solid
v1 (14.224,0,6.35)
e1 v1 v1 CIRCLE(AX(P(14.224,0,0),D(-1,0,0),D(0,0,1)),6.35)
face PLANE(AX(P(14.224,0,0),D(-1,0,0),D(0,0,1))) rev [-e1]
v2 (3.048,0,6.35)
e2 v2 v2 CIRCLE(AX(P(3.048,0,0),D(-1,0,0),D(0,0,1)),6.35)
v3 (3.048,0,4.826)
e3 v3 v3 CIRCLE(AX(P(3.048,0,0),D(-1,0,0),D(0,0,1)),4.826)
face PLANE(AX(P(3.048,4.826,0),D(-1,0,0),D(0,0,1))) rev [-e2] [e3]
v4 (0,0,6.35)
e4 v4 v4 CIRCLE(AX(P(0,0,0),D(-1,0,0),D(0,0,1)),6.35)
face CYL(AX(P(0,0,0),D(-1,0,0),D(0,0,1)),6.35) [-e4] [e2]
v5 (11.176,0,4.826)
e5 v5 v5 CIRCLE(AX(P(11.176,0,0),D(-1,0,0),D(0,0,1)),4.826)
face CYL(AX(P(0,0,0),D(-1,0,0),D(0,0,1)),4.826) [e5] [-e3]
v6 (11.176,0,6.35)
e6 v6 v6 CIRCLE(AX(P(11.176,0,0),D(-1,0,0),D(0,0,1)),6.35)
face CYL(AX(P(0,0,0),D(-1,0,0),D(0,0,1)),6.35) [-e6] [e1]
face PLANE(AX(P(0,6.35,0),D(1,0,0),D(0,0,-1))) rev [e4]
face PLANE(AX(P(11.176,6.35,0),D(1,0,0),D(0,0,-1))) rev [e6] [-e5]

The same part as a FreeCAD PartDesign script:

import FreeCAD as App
import Part
import Sketcher
Q = App.Units.Quantity

doc = App.newDocument("Part")
params = doc.addObject("Spreadsheet::Sheet", "Params")
for row, (alias, value) in enumerate([
    ("sketch1_width", "0.12 in"),
    ("sketch1_width2", "0.32 in"),
    ("sketch1_height", "0.25 in"),
    ("sketch1_height2", "0.06 in"),
    ("revolution_angle", "360 deg"),
], start=1):
    params.set(f"A{row}", alias)
    params.set(f"B{row}", "=" + value)
    params.setAlias(f"B{row}", alias)

body = doc.addObject("PartDesign::Body", "Body")

# Sketch on XY plane
sketch1 = body.newObject("Sketcher::SketchObject", "Sketch")
sketch1.AttachmentSupport = (doc.getObject("XY_Plane"), [""])
sketch1.MapMode = "FlatFace"
sketch1.addGeometry([
    Part.LineSegment(App.Vector(14.2, 0, 0), App.Vector(14.2, 6.3, 0)),  # 0
    Part.LineSegment(App.Vector(14.2, 6.3, 0), App.Vector(11.2, 6.3, 0)),  # 1
    Part.LineSegment(App.Vector(11.2, 6.3, 0), App.Vector(11.2, 4.8, 0)),  # 2
    Part.LineSegment(App.Vector(11.2, 4.8, 0), App.Vector(3, 4.8, 0)),  # 3
    Part.LineSegment(App.Vector(3, 4.8, 0), App.Vector(3, 6.3, 0)),  # 4
    Part.LineSegment(App.Vector(3, 6.3, 0), App.Vector(0, 6.3, 0)),  # 5
    Part.LineSegment(App.Vector(0, 6.3, 0), App.Vector(0, 0, 0)),  # 6
    Part.LineSegment(App.Vector(0, 0, 0), App.Vector(14.2, 0, 0)),  # 7
], False)
sketch1.addConstraint([
    Sketcher.Constraint("Coincident", 0, 2, 1, 1),
    Sketcher.Constraint("Coincident", 1, 2, 2, 1),
    Sketcher.Constraint("Coincident", 2, 2, 3, 1),
    Sketcher.Constraint("Coincident", 3, 2, 4, 1),
    Sketcher.Constraint("Coincident", 4, 2, 5, 1),
    Sketcher.Constraint("Coincident", 5, 2, 6, 1),
    Sketcher.Constraint("Coincident", 6, 2, 7, 1),
    Sketcher.Constraint("Coincident", 7, 2, 0, 1),
    Sketcher.Constraint("Vertical", 0),
    Sketcher.Constraint("Horizontal", 1),
    Sketcher.Constraint("Vertical", 2),
    Sketcher.Constraint("Horizontal", 3),
    Sketcher.Constraint("Vertical", 4),
    Sketcher.Constraint("Horizontal", 5),
    Sketcher.Constraint("Vertical", 6),
    Sketcher.Constraint("Horizontal", 7),
    Sketcher.Constraint("Coincident", 6, 2, -1, 1),
    Sketcher.Constraint("Horizontal", 1, 2, 4, 2),
    Sketcher.Constraint("Equal", 1, 5),
    Sketcher.Constraint("DistanceX", 1, 2, 1, 1, Q("0.12 in")),
    Sketcher.Constraint("DistanceX", 3, 2, 3, 1, Q("0.32 in")),
    Sketcher.Constraint("DistanceY", 0, 1, 0, 2, Q("0.25 in")),
    Sketcher.Constraint("DistanceY", 2, 2, 2, 1, Q("0.06 in")),
])
sketch1.setExpression("Constraints[19]", "Params.sketch1_width")
sketch1.setExpression("Constraints[20]", "Params.sketch1_width2")
sketch1.setExpression("Constraints[21]", "Params.sketch1_height")
sketch1.setExpression("Constraints[22]", "Params.sketch1_height2")
revolution = body.newObject("PartDesign::Revolution", "Revolution")
revolution.Profile = sketch1
revolution.ReferenceAxis = (sketch1, ["H_Axis"])
revolution.setExpression("Angle", "Params.revolution_angle")

doc.recompute()
